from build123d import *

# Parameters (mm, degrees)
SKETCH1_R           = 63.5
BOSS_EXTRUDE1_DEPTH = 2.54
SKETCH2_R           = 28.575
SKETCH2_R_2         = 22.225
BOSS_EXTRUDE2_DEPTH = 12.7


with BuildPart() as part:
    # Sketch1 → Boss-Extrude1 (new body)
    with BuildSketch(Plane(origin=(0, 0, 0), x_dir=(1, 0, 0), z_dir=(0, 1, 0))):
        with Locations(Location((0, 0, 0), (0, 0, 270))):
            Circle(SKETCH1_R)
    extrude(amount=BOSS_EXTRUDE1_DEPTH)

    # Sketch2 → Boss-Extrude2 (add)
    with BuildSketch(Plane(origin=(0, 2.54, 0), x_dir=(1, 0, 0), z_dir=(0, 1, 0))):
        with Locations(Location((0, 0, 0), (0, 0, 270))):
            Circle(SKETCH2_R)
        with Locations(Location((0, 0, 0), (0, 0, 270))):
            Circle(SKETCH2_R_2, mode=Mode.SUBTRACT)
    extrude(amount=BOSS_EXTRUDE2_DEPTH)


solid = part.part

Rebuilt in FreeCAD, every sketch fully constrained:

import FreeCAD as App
import Part
import Sketcher
from FreeCAD import Vector
Q = App.Units.Quantity

doc = App.newDocument("Part")
body = doc.addObject("PartDesign::Body", "Body")

# Sketch on XZ plane
sketch1 = body.newObject("Sketcher::SketchObject", "Sketch")
sketch1.AttachmentSupport = (doc.getObject("XZ_Plane"), [""])
sketch1.MapMode = "FlatFace"
sketch1.addGeometry(Part.Circle(Vector(0, 0, 0), Vector(0, 0, 1), 64), False)
sketch1.addConstraint(Sketcher.Constraint("Coincident", 0, 3, -1, 1))
sketch1.addConstraint(Sketcher.Constraint("Diameter", 0, Q("5 in")))
pad1 = body.newObject("PartDesign::Pad", "Pad")
pad1.Profile = sketch1
pad1.Length = Q("0.1 in")
pad1.Reversed = True

# Sketch on XZ plane
sketch2 = body.newObject("Sketcher::SketchObject", "Sketch001")
sketch2.AttachmentSupport = (doc.getObject("XZ_Plane"), [""])
sketch2.MapMode = "FlatFace"
sketch2.AttachmentOffset = App.Placement(Vector(0, 0, -0.1 * 25.4), App.Rotation())
sketch2.addGeometry(Part.Circle(Vector(0, 0, 0), Vector(0, 0, 1), 29), False)
sketch2.addGeometry(Part.Circle(Vector(0, 0, 0), Vector(0, 0, 1), 22), False)
sketch2.addConstraint(Sketcher.Constraint("Coincident", 0, 3, -1, 1))
sketch2.addConstraint(Sketcher.Constraint("Coincident", 1, 3, -1, 1))
sketch2.addConstraint(Sketcher.Constraint("Diameter", 0, Q("2.25 in")))
sketch2.addConstraint(Sketcher.Constraint("Diameter", 1, Q("1.75 in")))
pad2 = body.newObject("PartDesign::Pad", "Pad001")
pad2.Profile = sketch2
pad2.Length = Q("0.5 in")
pad2.Reversed = True

doc.recompute()
